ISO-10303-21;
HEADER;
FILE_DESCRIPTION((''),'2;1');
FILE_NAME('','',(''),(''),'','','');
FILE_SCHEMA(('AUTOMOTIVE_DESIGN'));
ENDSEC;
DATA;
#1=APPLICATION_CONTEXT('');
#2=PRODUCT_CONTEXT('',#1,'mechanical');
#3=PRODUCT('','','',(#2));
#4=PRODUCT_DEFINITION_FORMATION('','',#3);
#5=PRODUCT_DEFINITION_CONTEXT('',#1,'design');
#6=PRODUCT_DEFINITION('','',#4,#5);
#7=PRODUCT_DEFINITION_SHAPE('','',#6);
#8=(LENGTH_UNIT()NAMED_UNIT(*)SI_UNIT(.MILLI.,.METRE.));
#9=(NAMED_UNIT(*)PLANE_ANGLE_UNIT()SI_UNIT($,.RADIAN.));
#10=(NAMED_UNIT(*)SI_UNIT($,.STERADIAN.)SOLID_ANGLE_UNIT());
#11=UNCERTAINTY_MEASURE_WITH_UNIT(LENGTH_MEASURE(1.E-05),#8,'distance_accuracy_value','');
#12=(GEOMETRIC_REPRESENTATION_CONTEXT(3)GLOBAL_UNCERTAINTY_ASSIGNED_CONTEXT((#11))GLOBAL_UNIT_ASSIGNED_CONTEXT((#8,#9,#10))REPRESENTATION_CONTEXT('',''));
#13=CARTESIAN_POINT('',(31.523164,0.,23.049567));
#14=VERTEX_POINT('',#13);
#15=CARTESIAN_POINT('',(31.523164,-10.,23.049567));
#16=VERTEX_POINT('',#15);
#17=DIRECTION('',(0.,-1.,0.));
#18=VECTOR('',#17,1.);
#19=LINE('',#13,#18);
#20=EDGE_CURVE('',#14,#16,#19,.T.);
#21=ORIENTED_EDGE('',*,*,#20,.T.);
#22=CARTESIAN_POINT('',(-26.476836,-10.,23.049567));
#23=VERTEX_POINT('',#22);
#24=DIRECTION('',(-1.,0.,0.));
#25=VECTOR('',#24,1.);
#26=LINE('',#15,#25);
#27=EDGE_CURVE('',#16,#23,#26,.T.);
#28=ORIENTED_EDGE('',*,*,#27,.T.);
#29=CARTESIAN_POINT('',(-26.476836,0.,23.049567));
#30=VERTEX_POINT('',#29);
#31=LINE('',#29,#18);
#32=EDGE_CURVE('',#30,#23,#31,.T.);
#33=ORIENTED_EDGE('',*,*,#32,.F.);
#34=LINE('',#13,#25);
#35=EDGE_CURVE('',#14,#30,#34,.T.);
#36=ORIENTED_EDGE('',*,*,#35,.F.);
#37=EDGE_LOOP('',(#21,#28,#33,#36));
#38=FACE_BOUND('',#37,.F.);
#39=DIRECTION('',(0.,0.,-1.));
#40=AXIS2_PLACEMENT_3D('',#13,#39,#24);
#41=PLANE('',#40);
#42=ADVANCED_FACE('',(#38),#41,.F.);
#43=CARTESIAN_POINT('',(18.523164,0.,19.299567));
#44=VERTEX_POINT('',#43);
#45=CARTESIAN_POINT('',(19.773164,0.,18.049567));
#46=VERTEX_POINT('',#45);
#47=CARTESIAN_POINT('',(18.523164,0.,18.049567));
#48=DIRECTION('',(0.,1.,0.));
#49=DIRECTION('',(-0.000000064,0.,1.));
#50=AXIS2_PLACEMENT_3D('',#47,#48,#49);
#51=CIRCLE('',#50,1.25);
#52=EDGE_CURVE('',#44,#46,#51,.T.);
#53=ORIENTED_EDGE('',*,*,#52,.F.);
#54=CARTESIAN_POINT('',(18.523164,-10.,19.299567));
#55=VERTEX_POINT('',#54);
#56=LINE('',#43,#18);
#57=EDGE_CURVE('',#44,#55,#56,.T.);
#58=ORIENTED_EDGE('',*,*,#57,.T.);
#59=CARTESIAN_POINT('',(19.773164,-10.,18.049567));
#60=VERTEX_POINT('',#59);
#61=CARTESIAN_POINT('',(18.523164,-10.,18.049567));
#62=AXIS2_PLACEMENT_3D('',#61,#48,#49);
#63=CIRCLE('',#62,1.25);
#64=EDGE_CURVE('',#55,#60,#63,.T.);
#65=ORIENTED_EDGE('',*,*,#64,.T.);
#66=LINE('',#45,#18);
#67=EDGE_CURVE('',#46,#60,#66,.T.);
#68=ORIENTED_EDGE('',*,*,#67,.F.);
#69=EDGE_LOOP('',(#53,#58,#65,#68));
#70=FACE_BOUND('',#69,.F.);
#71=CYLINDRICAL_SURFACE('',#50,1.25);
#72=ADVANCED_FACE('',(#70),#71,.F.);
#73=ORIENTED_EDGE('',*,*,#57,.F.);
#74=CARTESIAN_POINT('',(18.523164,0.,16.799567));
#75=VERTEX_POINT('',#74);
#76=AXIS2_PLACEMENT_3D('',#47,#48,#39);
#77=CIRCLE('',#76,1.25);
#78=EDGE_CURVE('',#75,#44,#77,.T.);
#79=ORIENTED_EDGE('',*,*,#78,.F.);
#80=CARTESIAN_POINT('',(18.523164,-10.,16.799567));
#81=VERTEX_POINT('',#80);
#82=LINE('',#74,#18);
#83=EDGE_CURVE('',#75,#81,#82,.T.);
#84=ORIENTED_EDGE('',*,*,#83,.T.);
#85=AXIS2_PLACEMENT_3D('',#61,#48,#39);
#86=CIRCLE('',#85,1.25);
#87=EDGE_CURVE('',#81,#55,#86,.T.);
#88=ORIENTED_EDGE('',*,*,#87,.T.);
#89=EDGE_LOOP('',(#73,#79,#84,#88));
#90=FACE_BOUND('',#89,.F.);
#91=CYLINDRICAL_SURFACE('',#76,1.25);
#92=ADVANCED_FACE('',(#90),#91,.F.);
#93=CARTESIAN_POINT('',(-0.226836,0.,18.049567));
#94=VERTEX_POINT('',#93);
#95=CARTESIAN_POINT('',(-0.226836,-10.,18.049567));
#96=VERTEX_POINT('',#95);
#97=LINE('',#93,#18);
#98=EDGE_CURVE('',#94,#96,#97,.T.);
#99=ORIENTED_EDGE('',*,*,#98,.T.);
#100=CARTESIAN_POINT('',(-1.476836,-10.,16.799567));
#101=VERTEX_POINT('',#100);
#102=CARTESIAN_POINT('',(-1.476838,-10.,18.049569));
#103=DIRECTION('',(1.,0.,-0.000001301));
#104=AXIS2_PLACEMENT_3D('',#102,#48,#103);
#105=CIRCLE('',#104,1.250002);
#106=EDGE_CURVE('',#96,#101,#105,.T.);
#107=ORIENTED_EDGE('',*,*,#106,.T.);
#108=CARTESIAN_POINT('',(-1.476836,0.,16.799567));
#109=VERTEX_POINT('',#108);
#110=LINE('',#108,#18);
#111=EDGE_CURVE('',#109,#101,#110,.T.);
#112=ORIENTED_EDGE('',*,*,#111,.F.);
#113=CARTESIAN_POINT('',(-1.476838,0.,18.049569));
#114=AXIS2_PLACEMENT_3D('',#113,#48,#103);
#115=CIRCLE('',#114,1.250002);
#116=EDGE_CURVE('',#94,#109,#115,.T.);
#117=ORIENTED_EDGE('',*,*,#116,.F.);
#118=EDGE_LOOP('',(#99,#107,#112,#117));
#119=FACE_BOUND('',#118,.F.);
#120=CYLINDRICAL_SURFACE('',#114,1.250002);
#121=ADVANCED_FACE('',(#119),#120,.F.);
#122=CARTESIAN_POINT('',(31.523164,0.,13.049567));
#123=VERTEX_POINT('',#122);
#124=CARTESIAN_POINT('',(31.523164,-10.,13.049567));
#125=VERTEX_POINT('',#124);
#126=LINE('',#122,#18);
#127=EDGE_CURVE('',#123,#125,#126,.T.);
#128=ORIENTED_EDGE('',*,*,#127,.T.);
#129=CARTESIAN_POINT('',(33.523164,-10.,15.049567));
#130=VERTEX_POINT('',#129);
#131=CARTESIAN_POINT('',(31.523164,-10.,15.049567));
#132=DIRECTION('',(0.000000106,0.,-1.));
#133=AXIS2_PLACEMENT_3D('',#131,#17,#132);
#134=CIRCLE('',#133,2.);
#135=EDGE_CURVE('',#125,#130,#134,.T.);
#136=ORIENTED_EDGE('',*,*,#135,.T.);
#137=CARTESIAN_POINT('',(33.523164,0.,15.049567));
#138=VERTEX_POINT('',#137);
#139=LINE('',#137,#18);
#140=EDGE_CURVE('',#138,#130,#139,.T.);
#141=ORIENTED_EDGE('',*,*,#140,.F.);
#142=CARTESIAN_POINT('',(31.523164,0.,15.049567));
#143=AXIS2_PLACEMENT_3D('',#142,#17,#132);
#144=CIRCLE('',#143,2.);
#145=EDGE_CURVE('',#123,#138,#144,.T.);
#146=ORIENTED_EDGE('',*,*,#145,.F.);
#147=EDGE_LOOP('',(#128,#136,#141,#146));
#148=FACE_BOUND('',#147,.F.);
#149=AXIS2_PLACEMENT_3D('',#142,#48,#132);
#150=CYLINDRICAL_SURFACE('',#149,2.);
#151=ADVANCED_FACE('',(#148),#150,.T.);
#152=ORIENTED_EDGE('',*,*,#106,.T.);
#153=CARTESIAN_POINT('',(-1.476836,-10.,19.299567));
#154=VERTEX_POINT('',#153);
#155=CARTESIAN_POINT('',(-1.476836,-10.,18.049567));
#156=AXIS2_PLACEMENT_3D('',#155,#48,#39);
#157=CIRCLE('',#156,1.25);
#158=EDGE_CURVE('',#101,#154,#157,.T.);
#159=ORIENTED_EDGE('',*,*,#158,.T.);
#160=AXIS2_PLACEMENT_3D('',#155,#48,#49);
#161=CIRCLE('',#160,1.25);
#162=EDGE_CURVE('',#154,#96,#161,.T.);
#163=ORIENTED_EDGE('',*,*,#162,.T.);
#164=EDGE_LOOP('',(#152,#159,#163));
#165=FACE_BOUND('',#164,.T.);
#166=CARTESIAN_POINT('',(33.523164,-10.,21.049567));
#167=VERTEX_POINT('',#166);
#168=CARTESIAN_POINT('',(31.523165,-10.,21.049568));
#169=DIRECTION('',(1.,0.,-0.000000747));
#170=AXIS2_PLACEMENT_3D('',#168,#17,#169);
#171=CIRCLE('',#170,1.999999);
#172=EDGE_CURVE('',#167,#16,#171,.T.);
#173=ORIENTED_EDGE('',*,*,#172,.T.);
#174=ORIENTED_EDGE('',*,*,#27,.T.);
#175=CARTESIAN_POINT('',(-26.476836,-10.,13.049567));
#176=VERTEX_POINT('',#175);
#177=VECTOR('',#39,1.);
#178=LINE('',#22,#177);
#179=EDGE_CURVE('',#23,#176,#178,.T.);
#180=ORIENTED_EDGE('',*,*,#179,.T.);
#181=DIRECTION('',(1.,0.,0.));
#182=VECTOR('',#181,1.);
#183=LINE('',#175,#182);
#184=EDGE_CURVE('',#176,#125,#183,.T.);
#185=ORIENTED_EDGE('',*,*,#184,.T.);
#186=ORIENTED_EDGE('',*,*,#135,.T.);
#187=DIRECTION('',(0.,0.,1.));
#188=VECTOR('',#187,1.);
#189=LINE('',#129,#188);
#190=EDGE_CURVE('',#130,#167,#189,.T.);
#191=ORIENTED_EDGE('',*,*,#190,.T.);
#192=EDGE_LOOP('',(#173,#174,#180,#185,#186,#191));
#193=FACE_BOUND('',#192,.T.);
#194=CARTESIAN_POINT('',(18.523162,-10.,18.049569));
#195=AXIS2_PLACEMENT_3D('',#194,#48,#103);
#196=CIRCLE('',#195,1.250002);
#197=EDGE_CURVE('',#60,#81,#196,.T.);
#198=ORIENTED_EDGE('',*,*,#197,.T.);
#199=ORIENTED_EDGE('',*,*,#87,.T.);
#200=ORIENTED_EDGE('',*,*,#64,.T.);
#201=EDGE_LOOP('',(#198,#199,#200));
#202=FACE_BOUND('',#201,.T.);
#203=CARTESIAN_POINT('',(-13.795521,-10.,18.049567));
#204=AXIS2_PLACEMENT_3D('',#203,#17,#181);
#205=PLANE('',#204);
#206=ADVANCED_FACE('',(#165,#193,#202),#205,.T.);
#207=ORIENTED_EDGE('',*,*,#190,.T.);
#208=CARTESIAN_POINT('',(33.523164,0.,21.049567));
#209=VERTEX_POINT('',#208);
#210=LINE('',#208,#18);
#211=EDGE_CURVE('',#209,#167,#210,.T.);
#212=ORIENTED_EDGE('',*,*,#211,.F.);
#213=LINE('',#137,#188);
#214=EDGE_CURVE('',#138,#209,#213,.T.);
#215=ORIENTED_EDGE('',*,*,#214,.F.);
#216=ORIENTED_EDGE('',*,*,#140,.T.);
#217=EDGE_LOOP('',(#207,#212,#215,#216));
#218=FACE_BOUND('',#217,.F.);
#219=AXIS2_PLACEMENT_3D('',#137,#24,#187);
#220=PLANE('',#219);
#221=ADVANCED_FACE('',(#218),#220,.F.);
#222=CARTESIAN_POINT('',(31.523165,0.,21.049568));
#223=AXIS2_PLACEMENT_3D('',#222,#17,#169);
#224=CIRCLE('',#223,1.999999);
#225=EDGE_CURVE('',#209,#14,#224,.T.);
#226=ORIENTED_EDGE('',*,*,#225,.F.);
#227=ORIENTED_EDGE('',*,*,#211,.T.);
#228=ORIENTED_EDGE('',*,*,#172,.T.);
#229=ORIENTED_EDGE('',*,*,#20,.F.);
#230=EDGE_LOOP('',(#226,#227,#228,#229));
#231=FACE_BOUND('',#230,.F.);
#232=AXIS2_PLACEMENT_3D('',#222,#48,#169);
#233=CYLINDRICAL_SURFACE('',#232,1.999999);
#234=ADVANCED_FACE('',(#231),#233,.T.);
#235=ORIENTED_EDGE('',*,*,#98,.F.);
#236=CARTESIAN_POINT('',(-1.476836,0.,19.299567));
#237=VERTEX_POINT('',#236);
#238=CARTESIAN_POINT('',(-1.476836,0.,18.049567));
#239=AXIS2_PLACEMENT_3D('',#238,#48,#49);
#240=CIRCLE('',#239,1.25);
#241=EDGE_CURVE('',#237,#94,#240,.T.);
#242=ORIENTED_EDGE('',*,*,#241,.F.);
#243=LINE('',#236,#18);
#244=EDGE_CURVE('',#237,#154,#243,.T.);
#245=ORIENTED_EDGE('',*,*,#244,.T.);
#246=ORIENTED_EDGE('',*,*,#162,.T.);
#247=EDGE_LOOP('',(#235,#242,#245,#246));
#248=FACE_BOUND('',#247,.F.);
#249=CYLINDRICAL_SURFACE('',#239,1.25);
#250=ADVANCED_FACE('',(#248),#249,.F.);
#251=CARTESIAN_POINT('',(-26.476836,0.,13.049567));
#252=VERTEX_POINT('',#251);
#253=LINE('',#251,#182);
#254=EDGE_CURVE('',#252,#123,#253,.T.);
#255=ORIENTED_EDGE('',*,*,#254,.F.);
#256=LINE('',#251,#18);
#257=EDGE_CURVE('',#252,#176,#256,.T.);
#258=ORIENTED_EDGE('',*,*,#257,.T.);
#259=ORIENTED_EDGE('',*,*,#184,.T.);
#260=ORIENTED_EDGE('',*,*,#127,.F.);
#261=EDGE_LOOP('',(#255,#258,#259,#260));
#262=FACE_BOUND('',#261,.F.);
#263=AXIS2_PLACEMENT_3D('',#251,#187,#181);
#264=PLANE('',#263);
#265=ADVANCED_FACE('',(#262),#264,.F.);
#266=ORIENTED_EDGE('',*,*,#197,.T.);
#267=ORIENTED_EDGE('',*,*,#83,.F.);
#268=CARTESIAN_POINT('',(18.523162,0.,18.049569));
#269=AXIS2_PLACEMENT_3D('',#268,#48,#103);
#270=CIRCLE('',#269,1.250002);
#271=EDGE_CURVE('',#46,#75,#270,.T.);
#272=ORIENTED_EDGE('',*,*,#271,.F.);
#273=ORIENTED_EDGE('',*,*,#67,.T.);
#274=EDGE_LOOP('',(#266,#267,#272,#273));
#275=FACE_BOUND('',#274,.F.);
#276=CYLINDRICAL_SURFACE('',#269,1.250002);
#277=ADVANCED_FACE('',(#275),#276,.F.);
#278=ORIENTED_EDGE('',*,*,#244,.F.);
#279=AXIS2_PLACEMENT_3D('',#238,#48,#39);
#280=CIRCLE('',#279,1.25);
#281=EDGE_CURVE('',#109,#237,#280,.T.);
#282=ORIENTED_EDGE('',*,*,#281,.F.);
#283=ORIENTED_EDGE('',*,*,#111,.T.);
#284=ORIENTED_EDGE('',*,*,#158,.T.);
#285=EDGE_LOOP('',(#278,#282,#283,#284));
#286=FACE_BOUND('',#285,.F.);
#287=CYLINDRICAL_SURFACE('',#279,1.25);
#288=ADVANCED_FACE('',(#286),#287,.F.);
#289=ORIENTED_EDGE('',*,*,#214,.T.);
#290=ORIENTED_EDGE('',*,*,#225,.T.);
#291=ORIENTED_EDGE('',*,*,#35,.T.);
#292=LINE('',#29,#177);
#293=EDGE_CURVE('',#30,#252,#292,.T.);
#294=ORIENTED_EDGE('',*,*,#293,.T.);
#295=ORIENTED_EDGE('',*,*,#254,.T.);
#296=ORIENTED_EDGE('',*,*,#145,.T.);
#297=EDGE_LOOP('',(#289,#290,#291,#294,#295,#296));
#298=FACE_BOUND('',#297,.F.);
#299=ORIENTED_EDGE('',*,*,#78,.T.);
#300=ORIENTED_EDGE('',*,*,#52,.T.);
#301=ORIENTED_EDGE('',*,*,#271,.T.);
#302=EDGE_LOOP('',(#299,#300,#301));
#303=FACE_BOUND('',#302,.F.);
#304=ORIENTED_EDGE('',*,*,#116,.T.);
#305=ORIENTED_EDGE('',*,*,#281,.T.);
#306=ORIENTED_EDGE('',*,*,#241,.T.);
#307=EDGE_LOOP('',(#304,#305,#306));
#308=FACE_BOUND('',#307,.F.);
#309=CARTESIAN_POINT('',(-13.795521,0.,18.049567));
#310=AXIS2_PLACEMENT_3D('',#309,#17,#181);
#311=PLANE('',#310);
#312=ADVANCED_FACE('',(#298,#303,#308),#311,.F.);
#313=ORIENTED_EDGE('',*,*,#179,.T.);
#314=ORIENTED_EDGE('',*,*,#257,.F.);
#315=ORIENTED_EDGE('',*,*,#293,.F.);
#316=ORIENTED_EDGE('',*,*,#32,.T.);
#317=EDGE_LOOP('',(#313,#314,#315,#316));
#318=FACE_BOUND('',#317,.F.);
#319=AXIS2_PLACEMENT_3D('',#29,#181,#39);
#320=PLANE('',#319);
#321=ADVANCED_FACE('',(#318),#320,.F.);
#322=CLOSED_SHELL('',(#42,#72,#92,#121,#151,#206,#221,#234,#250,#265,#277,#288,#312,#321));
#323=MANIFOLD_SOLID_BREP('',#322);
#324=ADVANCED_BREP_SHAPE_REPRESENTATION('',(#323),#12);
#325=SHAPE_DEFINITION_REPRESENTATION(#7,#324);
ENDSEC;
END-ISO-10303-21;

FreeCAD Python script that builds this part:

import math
import FreeCAD as App
import Part
import Sketcher
Q = App.Units.Quantity

doc = App.newDocument("Part")
body = doc.addObject("PartDesign::Body", "Body")

sketch1 = body.newObject("Sketcher::SketchObject", "Sketch")
sketch1.AttachmentSupport = (doc.getObject("XZ_Plane"), [""])
sketch1.MapMode = "FlatFace"
sketch1.addGeometry([
    Part.LineSegment(App.Vector(-26.5, 23, 0), App.Vector(-26.5, 13, 0)),
    Part.LineSegment(App.Vector(-26.5, 13, 0), App.Vector(31.5, 13, 0)),
    Part.ArcOfCircle(Part.Circle(App.Vector(31.5, 15, 0), App.Vector(0, 0, 1), 2), math.radians(-90), math.radians(0)),
    Part.LineSegment(App.Vector(33.5, 15, 0), App.Vector(33.5, 21, 0)),
    Part.ArcOfCircle(Part.Circle(App.Vector(31.5, 21, 0), App.Vector(0, 0, 1), 2), math.radians(0), math.radians(90)),
    Part.LineSegment(App.Vector(31.5, 23, 0), App.Vector(-26.5, 23, 0)),
    Part.ArcOfCircle(Part.Circle(App.Vector(18.5, 18, 0), App.Vector(0, 0, 1), 1.2), math.radians(90), math.radians(270)),
    Part.ArcOfCircle(Part.Circle(App.Vector(18.5, 18, 0), App.Vector(0, 0, 1), 1.2), math.radians(0), math.radians(90)),
    Part.ArcOfCircle(Part.Circle(App.Vector(18.5, 18, 0), App.Vector(0, 0, 1), 1.3), math.radians(-90), math.radians(0)),
    Part.ArcOfCircle(Part.Circle(App.Vector(-1.5, 18, 0), App.Vector(0, 0, 1), 1.2), math.radians(90), math.radians(270)),
    Part.ArcOfCircle(Part.Circle(App.Vector(-1.5, 18, 0), App.Vector(0, 0, 1), 1.2), math.radians(0), math.radians(90)),
    Part.ArcOfCircle(Part.Circle(App.Vector(-1.5, 18, 0), App.Vector(0, 0, 1), 1.3), math.radians(-90), math.radians(0)),
], False)
sketch1.addConstraint([
    Sketcher.Constraint("Coincident", 0, 2, 1, 1),
    Sketcher.Constraint("Tangent", 1, 2, 2, 1),
    Sketcher.Constraint("Tangent", 2, 2, 3, 1),
    Sketcher.Constraint("Tangent", 3, 2, 4, 1),
    Sketcher.Constraint("Tangent", 4, 2, 5, 1),
    Sketcher.Constraint("Coincident", 5, 2, 0, 1),
    Sketcher.Constraint("Tangent", 6, 1, 7, 2),
    Sketcher.Constraint("Tangent", 7, 1, 8, 2),
    Sketcher.Constraint("Tangent", 8, 1, 6, 2),
    Sketcher.Constraint("Tangent", 9, 1, 10, 2),
    Sketcher.Constraint("Tangent", 10, 1, 11, 2),
    Sketcher.Constraint("Tangent", 11, 1, 9, 2),
    Sketcher.Constraint("Vertical", 0),
    Sketcher.Constraint("Horizontal", 1),
    Sketcher.Constraint("Vertical", 3),
    Sketcher.Constraint("Horizontal", 5),
    Sketcher.Constraint("Equal", 2, 4),
    Sketcher.Constraint("Equal", 8, 9),
    Sketcher.Constraint("Horizontal", 8, 3, 9, 3),
    Sketcher.Constraint("Horizontal", 11, 3, 7, 1),
    Sketcher.Constraint("Horizontal", 7, 1, 10, 1),
    Sketcher.Constraint("Vertical", 8, 3, 6, 1),
    Sketcher.Constraint("Vertical", 6, 1, 8, 1),
    Sketcher.Constraint("Vertical", 11, 3, 9, 1),
    Sketcher.Constraint("Vertical", 9, 1, 11, 1),
    Sketcher.Constraint("Radius", 2, Q("2 mm")),
    Sketcher.Constraint("DistanceX", 1, 1, 1, 2, Q("58 mm")),
    Sketcher.Constraint("DistanceY", 0, 2, 0, 1, Q("10 mm")),
    Sketcher.Constraint("Radius", 6, Q("1.25 mm")),
    Sketcher.Constraint("DistanceX", 6, 3, 2, 3, Q("13 mm")),
    Sketcher.Constraint("DistanceY", 2, 3, 6, 3, Q("3 mm")),
    Sketcher.Constraint("DistanceX", 9, 3, 8, 3, Q("19.999998 mm")),
    Sketcher.Constraint("DistanceY", -1, 1, 4, 3, Q("21.049568 mm")),
    Sketcher.Constraint("DistanceX", -1, 1, 2, 3, Q("31.523164 mm")),
])
pad1 = body.newObject("PartDesign::Pad", "Pad")
pad1.Profile = sketch1
pad1.Length = 10

doc.recompute()
